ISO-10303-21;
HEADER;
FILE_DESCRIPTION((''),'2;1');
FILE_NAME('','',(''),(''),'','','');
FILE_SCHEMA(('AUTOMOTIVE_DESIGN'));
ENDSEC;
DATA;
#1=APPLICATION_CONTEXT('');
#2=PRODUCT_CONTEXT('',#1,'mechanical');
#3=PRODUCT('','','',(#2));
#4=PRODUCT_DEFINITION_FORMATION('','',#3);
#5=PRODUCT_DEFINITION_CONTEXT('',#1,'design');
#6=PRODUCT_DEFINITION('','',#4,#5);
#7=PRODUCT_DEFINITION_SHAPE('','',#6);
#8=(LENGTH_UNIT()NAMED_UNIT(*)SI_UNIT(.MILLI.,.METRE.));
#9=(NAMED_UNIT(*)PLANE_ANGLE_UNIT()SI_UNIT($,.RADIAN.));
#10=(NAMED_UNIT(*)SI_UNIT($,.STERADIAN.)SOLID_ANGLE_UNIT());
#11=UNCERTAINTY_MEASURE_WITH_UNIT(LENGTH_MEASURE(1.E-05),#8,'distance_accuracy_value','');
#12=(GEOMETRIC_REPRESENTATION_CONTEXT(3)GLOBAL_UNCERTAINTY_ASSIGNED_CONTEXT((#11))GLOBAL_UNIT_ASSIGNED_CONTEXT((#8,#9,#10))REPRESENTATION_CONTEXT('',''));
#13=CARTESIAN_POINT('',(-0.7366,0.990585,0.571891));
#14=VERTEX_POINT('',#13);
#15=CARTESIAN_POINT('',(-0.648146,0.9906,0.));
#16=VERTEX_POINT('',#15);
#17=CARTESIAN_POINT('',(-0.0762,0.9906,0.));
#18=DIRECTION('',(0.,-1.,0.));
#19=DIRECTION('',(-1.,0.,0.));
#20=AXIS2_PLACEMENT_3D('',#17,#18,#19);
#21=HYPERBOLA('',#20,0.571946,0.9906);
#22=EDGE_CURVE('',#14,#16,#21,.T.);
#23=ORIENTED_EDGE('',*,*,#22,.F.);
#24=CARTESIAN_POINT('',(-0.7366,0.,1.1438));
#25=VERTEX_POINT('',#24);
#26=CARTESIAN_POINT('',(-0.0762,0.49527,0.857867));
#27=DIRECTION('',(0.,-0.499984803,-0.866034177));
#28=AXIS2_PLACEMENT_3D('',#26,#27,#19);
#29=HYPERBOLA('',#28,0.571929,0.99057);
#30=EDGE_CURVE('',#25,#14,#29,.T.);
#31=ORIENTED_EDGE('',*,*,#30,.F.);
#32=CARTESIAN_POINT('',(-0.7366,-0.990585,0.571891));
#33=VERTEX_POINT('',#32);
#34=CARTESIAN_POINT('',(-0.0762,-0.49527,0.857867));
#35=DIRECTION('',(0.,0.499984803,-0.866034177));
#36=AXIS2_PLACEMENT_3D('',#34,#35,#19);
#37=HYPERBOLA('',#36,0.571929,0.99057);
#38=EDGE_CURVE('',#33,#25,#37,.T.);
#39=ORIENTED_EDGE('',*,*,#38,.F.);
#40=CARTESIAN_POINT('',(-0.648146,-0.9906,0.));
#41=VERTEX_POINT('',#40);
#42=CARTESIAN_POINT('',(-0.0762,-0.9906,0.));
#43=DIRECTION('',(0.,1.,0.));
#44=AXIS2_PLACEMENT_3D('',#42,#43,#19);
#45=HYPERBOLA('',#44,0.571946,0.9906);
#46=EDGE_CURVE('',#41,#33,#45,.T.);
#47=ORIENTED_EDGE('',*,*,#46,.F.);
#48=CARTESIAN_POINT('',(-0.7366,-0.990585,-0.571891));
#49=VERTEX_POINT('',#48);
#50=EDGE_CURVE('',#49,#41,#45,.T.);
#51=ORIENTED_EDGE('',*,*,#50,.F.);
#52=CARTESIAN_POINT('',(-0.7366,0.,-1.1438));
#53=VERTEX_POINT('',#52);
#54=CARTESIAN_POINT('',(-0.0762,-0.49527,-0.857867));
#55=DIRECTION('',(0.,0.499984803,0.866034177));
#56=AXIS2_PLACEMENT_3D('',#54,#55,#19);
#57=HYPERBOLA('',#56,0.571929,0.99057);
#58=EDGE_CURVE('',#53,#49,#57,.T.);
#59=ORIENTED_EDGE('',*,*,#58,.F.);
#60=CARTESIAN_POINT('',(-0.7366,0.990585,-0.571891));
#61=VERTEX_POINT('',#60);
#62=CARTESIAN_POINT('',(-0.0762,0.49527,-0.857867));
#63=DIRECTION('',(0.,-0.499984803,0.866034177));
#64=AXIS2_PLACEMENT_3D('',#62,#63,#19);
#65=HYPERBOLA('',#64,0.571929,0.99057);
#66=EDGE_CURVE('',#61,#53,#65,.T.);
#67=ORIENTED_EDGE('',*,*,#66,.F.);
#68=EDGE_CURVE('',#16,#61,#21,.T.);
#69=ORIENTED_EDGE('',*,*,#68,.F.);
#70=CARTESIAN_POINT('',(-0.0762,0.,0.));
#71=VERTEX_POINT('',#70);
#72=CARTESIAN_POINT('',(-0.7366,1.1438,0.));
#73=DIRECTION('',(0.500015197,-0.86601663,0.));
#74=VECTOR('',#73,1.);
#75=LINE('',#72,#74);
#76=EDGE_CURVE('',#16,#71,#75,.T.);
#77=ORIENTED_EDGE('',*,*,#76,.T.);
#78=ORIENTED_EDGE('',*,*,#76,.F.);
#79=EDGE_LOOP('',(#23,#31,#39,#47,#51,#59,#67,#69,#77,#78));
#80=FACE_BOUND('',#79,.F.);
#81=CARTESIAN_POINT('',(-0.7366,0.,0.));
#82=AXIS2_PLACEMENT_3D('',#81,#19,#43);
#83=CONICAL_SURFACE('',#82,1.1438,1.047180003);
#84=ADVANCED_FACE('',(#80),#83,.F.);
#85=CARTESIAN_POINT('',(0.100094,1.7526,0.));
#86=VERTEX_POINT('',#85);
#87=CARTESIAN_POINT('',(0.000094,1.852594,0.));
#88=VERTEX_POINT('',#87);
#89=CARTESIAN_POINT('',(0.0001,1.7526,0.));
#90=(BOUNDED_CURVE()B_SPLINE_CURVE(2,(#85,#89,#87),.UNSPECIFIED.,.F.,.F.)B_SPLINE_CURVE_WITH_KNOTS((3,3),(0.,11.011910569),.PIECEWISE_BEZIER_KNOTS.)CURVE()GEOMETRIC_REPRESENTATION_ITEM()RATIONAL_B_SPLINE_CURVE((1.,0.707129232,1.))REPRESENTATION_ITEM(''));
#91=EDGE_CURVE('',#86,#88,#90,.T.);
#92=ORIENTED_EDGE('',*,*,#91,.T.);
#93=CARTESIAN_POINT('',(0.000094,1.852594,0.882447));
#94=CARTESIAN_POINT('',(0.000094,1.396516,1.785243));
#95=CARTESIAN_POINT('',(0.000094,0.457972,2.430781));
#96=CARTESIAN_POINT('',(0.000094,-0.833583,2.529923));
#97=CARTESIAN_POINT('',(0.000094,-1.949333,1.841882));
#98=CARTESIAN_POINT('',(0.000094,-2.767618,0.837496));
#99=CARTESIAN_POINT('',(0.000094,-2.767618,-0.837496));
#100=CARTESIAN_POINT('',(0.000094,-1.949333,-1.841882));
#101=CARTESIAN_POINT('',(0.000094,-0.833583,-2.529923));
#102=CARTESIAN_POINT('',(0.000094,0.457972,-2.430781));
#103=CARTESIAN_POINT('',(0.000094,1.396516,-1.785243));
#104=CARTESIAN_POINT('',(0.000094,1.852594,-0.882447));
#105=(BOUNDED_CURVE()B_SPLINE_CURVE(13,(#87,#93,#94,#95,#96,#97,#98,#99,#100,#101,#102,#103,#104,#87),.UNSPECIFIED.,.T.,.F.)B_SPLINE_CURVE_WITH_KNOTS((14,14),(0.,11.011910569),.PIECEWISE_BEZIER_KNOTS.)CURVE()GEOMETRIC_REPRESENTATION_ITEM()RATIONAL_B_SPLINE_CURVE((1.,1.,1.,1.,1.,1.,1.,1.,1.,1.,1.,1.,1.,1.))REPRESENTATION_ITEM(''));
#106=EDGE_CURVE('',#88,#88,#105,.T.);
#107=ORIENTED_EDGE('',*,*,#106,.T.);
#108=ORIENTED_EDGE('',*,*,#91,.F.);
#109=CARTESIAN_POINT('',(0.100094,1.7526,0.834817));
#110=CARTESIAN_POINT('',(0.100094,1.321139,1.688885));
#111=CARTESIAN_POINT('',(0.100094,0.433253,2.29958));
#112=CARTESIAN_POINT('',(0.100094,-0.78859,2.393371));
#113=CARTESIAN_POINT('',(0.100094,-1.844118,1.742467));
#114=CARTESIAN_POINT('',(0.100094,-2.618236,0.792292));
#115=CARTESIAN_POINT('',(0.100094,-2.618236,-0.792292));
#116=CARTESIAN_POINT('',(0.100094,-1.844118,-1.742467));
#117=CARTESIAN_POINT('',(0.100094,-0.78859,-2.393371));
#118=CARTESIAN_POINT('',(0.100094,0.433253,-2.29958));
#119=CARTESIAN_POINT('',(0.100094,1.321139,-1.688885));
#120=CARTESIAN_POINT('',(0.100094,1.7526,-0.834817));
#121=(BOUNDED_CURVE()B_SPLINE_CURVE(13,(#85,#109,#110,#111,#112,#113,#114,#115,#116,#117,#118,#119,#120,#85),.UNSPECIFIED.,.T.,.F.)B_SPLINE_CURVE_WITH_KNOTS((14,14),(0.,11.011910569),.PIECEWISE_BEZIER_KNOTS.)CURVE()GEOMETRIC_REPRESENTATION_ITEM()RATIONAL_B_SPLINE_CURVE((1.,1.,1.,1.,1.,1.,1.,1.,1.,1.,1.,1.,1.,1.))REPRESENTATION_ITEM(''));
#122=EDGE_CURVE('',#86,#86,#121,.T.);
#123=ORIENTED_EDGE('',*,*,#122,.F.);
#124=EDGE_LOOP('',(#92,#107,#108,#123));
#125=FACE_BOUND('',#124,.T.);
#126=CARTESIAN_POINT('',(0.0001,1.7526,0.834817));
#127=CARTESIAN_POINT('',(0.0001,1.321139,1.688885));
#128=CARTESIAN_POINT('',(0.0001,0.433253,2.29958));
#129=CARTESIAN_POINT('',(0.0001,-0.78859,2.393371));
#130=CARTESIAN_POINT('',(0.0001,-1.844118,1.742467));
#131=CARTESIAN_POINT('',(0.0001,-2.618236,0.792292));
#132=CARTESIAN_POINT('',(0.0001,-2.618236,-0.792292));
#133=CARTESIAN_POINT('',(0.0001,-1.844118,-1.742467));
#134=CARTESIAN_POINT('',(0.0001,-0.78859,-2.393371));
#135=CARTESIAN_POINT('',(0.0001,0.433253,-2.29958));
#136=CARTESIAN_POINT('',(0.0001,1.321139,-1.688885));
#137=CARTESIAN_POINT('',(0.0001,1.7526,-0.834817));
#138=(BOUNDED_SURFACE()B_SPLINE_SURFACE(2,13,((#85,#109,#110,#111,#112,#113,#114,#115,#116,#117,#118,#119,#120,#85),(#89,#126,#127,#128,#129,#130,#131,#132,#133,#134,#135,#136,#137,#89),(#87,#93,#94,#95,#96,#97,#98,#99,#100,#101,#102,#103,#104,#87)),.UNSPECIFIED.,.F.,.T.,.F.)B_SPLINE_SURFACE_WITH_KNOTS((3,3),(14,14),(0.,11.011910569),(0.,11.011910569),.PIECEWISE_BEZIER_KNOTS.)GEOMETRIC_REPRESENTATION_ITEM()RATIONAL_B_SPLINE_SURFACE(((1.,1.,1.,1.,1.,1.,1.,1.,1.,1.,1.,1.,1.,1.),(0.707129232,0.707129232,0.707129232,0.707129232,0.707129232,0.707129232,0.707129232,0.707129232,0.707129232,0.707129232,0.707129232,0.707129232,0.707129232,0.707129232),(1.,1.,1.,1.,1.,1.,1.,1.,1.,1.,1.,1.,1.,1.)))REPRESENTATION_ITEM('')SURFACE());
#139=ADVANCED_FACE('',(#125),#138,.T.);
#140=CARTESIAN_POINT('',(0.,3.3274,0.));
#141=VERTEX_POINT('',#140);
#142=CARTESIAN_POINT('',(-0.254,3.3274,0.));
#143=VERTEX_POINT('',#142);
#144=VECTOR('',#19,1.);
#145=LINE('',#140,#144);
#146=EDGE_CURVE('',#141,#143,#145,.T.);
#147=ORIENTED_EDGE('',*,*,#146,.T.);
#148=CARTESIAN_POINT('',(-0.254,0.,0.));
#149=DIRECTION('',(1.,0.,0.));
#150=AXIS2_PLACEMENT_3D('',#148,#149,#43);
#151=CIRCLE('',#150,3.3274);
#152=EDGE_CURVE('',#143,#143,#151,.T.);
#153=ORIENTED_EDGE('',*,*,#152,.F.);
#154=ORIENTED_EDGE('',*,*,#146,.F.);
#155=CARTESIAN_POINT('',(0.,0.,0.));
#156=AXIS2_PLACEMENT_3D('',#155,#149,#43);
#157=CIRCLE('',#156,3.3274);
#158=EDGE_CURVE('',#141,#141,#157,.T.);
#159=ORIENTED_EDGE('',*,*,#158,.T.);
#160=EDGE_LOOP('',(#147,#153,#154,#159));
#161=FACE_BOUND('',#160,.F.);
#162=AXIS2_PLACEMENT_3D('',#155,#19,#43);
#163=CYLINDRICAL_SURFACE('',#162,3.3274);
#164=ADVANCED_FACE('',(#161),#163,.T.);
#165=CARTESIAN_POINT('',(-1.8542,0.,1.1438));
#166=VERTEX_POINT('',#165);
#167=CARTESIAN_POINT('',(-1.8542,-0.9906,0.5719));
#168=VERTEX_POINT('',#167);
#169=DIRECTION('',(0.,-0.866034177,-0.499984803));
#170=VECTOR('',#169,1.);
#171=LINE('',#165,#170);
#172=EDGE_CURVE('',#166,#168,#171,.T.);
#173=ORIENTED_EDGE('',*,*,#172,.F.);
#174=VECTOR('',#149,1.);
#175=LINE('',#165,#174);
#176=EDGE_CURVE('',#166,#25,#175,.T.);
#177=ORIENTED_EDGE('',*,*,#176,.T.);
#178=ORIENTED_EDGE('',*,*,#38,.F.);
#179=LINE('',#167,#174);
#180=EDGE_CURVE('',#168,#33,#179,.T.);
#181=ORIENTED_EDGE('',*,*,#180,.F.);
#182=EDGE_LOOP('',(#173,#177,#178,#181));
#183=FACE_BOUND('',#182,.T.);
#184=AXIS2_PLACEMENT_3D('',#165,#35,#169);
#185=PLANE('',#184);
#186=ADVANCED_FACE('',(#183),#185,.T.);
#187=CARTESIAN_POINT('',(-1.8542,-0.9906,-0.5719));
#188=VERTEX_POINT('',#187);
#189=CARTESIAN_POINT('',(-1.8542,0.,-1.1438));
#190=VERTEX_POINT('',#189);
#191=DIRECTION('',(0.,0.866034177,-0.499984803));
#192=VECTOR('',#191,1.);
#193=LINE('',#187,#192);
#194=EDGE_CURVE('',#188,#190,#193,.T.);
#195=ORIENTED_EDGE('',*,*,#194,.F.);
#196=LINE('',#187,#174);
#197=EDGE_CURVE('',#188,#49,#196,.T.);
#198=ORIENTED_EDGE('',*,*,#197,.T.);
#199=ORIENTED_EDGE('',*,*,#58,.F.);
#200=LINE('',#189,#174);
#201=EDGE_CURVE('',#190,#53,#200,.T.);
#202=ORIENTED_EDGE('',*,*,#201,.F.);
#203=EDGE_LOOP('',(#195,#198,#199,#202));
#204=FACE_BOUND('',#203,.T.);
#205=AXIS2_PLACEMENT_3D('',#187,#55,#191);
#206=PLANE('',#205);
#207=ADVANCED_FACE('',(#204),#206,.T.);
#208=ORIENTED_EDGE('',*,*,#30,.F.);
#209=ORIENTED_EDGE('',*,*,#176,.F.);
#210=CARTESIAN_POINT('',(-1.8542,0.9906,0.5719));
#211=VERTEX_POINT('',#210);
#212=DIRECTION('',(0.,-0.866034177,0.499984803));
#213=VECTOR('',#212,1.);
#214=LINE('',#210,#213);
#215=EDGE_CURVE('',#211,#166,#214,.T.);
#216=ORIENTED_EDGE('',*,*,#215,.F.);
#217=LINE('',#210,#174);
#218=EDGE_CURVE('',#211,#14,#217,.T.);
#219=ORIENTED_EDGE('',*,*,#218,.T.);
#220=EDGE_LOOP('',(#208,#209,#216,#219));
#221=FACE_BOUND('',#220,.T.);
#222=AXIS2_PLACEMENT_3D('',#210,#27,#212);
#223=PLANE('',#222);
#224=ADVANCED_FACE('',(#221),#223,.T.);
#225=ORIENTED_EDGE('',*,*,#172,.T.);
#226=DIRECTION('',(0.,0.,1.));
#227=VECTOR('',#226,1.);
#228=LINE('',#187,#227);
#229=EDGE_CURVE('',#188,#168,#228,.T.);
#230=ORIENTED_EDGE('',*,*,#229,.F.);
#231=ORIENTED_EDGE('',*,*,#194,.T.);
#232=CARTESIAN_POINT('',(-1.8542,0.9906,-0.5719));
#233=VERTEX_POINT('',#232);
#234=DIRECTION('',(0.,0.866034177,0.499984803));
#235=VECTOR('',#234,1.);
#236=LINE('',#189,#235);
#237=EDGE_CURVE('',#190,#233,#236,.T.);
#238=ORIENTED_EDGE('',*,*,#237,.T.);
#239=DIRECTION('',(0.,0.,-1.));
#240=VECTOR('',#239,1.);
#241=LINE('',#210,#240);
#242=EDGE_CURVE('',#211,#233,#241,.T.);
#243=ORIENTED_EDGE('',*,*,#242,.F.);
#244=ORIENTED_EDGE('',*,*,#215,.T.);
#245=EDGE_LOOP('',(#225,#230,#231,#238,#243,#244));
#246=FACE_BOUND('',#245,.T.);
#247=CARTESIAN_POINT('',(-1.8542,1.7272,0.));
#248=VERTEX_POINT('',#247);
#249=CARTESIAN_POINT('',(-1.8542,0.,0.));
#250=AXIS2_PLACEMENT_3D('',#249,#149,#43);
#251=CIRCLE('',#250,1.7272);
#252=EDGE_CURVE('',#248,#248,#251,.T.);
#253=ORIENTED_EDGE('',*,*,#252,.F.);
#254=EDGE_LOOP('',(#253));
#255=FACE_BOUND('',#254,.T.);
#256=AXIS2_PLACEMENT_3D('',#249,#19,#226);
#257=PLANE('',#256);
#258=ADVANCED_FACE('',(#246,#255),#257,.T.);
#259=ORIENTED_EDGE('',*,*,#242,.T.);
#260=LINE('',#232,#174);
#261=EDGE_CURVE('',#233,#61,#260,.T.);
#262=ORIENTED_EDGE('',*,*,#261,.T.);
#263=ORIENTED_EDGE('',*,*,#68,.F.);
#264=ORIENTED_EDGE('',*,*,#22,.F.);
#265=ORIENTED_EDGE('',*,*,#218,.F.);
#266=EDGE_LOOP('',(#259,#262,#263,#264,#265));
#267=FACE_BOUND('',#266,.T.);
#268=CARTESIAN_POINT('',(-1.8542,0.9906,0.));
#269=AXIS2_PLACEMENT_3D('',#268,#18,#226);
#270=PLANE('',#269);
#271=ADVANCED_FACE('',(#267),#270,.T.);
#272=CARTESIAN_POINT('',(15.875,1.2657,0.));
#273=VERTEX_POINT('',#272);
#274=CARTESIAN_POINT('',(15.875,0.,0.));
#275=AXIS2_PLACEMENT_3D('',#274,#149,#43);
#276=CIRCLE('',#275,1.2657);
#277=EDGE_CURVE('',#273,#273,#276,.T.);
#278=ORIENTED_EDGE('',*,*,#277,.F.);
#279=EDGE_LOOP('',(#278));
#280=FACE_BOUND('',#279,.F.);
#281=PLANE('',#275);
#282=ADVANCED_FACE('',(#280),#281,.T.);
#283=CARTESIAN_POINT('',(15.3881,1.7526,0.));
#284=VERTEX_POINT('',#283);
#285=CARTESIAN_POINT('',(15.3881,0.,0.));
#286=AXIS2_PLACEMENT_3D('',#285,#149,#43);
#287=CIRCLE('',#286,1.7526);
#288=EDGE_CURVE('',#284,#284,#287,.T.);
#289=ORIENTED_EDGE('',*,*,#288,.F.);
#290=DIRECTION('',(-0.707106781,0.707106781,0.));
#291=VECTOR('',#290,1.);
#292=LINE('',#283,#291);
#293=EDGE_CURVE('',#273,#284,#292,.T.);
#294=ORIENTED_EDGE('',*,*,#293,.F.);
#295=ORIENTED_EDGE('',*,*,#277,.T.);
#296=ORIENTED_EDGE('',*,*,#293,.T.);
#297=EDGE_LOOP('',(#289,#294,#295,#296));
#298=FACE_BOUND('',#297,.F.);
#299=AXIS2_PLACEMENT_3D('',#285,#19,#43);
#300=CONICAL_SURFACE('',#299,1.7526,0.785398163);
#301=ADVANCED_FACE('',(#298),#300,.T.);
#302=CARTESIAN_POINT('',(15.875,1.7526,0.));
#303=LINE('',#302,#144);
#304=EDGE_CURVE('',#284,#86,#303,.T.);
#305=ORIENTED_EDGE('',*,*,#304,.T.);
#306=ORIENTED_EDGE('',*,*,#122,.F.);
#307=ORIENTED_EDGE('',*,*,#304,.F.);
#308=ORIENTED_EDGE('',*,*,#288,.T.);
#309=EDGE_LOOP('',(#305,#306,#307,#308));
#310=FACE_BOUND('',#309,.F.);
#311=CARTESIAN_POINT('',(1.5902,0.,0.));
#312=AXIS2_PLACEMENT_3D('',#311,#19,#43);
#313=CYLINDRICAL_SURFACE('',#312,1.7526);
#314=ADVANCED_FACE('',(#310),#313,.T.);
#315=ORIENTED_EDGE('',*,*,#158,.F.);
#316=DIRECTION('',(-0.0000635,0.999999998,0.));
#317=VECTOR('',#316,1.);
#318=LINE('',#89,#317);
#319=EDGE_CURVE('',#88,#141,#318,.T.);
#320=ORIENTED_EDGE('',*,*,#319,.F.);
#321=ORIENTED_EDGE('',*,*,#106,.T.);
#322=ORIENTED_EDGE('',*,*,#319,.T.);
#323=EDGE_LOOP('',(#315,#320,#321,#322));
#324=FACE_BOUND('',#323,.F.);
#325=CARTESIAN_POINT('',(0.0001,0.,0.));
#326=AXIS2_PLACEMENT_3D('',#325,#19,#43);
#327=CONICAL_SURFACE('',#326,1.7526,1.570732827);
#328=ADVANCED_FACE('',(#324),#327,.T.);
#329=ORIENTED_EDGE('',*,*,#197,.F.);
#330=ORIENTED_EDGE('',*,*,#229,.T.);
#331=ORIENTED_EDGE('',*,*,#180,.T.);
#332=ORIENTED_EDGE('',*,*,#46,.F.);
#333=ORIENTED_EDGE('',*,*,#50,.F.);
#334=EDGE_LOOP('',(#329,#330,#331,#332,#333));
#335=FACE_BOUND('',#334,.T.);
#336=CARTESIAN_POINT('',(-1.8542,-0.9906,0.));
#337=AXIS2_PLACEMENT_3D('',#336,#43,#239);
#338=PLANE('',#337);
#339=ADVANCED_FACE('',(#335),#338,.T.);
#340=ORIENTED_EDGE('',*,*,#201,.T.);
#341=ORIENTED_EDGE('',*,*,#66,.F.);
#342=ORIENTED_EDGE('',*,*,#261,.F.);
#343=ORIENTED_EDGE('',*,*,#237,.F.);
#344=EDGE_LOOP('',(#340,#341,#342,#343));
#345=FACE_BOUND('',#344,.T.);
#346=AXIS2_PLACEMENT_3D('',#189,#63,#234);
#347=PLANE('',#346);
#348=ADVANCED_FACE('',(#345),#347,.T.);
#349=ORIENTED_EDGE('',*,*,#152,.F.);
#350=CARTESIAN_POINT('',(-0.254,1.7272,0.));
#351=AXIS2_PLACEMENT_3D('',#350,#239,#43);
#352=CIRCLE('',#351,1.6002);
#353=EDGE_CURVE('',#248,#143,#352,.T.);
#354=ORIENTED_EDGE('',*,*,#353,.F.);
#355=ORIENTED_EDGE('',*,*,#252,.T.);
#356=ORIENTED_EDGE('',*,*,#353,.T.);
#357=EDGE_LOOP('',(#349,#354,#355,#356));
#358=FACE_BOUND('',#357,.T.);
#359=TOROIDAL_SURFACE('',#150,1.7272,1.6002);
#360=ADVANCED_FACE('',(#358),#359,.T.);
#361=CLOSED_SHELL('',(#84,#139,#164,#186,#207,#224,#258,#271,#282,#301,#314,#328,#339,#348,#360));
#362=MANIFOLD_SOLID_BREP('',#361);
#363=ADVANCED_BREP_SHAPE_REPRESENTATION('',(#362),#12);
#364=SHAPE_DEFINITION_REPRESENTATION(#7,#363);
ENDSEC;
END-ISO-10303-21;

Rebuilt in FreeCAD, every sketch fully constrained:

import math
import FreeCAD as App
import Part
import Sketcher

V = App.Vector
Q = App.Units.Quantity


def edges_at(feature, points):
    """Names of the edges that pass closest to the given points."""
    edges = feature.Shape.Edges
    near = lambda p: min(range(len(edges)), key=lambda i: edges[i].distToShape(Part.Vertex(*p))[0])
    return sorted({f"Edge{near(p) + 1}" for p in points})

doc = App.newDocument("Part")
body = doc.addObject("PartDesign::Body", "Body")

# Sketch on XY plane
sketch1 = body.newObject("Sketcher::SketchObject", "Sketch")
sketch1.AttachmentSupport = (doc.getObject("XY_Plane"), [""])
sketch1.MapMode = "FlatFace"
sketch1.addGeometry([
    Part.LineSegment(V(-0.7, 1.1, 0), V(-0.1, 0, 0)),  # 0
    Part.LineSegment(V(-0.1, 0, 0), V(15.9, 0, 0)),  # 1
    Part.LineSegment(V(15.9, 0, 0), V(15.9, 1.8, 0)),  # 2
    Part.LineSegment(V(15.9, 1.8, 0), V(0, 1.8, 0)),  # 3
    Part.LineSegment(V(0, 1.8, 0), V(0, 3.3, 0)),  # 4
    Part.LineSegment(V(0, 3.3, 0), V(-1.9, 3.3, 0)),  # 5
    Part.LineSegment(V(-1.9, 3.3, 0), V(-1.9, 1.1, 0)),  # 6
    Part.LineSegment(V(-1.9, 1.1, 0), V(-0.7, 1.1, 0)),  # 7
], False)
sketch1.addConstraint([
    Sketcher.Constraint("Coincident", 0, 2, 1, 1),
    Sketcher.Constraint("Coincident", 1, 2, 2, 1),
    Sketcher.Constraint("Coincident", 2, 2, 3, 1),
    Sketcher.Constraint("Coincident", 3, 2, 4, 1),
    Sketcher.Constraint("Coincident", 4, 2, 5, 1),
    Sketcher.Constraint("Coincident", 5, 2, 6, 1),
    Sketcher.Constraint("Coincident", 6, 2, 7, 1),
    Sketcher.Constraint("Coincident", 7, 2, 0, 1),
    Sketcher.Constraint("Horizontal", 1),
    Sketcher.Constraint("Vertical", 2),
    Sketcher.Constraint("Horizontal", 3),
    Sketcher.Constraint("Vertical", 4),
    Sketcher.Constraint("Horizontal", 5),
    Sketcher.Constraint("Vertical", 6),
    Sketcher.Constraint("Horizontal", 7),
    Sketcher.Constraint("PointOnObject", 0, 2, -1),
    Sketcher.Constraint("PointOnObject", 3, 2, -2),
    Sketcher.Constraint("DistanceX", 3, 2, 3, 1, Q("0.625 in")),
    Sketcher.Constraint("DistanceX", 5, 2, 5, 1, Q("0.073 in")),
    Sketcher.Constraint("DistanceX", 7, 1, 7, 2, Q("0.044 in")),
    Sketcher.Constraint("Angle", 0, Q("-59.999 deg")),
    Sketcher.Constraint("DistanceX", 1, 1, 1, 2, Q("0.628 in")),
    Sketcher.Constraint("DistanceY", 2, 1, 2, 2, Q("0.069 in")),
    Sketcher.Constraint("DistanceY", 4, 1, 4, 2, Q("0.062 in")),
])
revolution = body.newObject("PartDesign::Revolution", "Revolution")
revolution.Profile = sketch1
revolution.ReferenceAxis = (sketch1, ["H_Axis"])
revolution.Angle = 360

# Sketch on YZ plane
sketch2 = body.newObject("Sketcher::SketchObject", "Sketch001")
sketch2.AttachmentSupport = (doc.getObject("YZ_Plane"), [""])
sketch2.MapMode = "FlatFace"
sketch2.AttachmentOffset = App.Placement(V(0, 0, -0.073 * 25.4), App.Rotation())
sketch2.addGeometry([
    Part.LineSegment(V(1, 0.6, 0), V(0, 1.1, 0)),  # 0
    Part.ArcOfCircle(Part.Circle(V(0, 0, 0), V(0, 0, 1), 1.1), math.radians(30), math.radians(90)),  # 1
    Part.ArcOfCircle(Part.Circle(V(0, 0, 0), V(0, 0, 1), 1.1), math.radians(90), math.radians(150)),  # 2
    Part.LineSegment(V(0, 1.1, 0), V(-1, 0.6, 0)),  # 3
    Part.ArcOfCircle(Part.Circle(V(0, 0, 0), V(0, 0, 1), 1.1), math.radians(-30), math.radians(30)),  # 4
    Part.LineSegment(V(1, 0.6, 0), V(1, -0.6, 0)),  # 5
    Part.LineSegment(V(-1, 0.6, 0), V(-1, -0.6, 0)),  # 6
    Part.ArcOfCircle(Part.Circle(V(0, 0, 0), V(0, 0, 1), 1.1), math.radians(150), math.radians(210)),  # 7
    Part.LineSegment(V(-1, -0.6, 0), V(0, -1.1, 0)),  # 8
    Part.ArcOfCircle(Part.Circle(V(0, 0, 0), V(0, 0, 1), 1.1), math.radians(-150), math.radians(-90)),  # 9
    Part.ArcOfCircle(Part.Circle(V(0, 0, 0), V(0, 0, 1), 1.1), math.radians(-90), math.radians(-30)),  # 10
    Part.LineSegment(V(0, -1.1, 0), V(1, -0.6, 0)),  # 11
], False)
sketch2.addConstraint([
    Sketcher.Constraint("Coincident", 0, 1, 1, 1),
    Sketcher.Constraint("Coincident", 1, 2, 0, 2),
    Sketcher.Constraint("Coincident", 2, 1, 3, 1),
    Sketcher.Constraint("Coincident", 3, 2, 2, 2),
    Sketcher.Constraint("Coincident", 4, 1, 5, 2),
    Sketcher.Constraint("Coincident", 5, 1, 4, 2),
    Sketcher.Constraint("Coincident", 6, 1, 7, 1),
    Sketcher.Constraint("Coincident", 7, 2, 6, 2),
    Sketcher.Constraint("Coincident", 8, 1, 9, 1),
    Sketcher.Constraint("Coincident", 9, 2, 8, 2),
    Sketcher.Constraint("Coincident", 10, 1, 11, 1),
    Sketcher.Constraint("Coincident", 11, 2, 10, 2),
    Sketcher.Constraint("Vertical", 5),
    Sketcher.Constraint("Vertical", 6),
    Sketcher.Constraint("Coincident", 1, 3, -1, 1),
    Sketcher.Constraint("Coincident", 2, 3, -1, 1),
    Sketcher.Constraint("Coincident", 4, 3, -1, 1),
    Sketcher.Constraint("Coincident", 7, 3, -1, 1),
    Sketcher.Constraint("Coincident", 9, 3, -1, 1),
    Sketcher.Constraint("Coincident", 10, 3, -1, 1),
    Sketcher.Constraint("Coincident", 2, 1, 1, 2),
    Sketcher.Constraint("Coincident", 5, 1, 0, 1),
    Sketcher.Constraint("Coincident", 6, 1, 3, 2),
    Sketcher.Constraint("Coincident", 8, 1, 7, 2),
    Sketcher.Constraint("Coincident", 10, 1, 9, 2),
    Sketcher.Constraint("PointOnObject", 1, 2, -2),
    Sketcher.Constraint("PointOnObject", 9, 2, -2),
    Sketcher.Constraint("Parallel", 0, 8),
    Sketcher.Constraint("Parallel", 3, 11),
    Sketcher.Constraint("Angle", 0, Q("150.001 deg")),
    Sketcher.Constraint("Radius", 1, Q("1.1438 mm")),
])
pad1 = body.newObject("PartDesign::Pad", "Pad")
pad1.Profile = sketch2
pad1.Type = "UpToFirst"
doc.recompute()

fillet = body.newObject("PartDesign::Fillet", "Fillet")
fillet.Base = (pad1, edges_at(pad1, [(-1.854, -3.327, 0)]))
fillet.Radius = Q("0.063 in")
doc.recompute()

chamfer = body.newObject("PartDesign::Chamfer", "Chamfer")
chamfer.Base = (fillet, edges_at(fillet, [(15.875, -1.753, 0)]))
chamfer.ChamferType = "Two distances"
chamfer.Size = 0.4869
chamfer.Size2 = 0.4869
doc.recompute()

fillet2 = body.newObject("PartDesign::Fillet", "Fillet001")
fillet2.Base = (chamfer, edges_at(chamfer, [(0, -1.753, 0)]))
fillet2.Radius = 0.1

doc.recompute()
